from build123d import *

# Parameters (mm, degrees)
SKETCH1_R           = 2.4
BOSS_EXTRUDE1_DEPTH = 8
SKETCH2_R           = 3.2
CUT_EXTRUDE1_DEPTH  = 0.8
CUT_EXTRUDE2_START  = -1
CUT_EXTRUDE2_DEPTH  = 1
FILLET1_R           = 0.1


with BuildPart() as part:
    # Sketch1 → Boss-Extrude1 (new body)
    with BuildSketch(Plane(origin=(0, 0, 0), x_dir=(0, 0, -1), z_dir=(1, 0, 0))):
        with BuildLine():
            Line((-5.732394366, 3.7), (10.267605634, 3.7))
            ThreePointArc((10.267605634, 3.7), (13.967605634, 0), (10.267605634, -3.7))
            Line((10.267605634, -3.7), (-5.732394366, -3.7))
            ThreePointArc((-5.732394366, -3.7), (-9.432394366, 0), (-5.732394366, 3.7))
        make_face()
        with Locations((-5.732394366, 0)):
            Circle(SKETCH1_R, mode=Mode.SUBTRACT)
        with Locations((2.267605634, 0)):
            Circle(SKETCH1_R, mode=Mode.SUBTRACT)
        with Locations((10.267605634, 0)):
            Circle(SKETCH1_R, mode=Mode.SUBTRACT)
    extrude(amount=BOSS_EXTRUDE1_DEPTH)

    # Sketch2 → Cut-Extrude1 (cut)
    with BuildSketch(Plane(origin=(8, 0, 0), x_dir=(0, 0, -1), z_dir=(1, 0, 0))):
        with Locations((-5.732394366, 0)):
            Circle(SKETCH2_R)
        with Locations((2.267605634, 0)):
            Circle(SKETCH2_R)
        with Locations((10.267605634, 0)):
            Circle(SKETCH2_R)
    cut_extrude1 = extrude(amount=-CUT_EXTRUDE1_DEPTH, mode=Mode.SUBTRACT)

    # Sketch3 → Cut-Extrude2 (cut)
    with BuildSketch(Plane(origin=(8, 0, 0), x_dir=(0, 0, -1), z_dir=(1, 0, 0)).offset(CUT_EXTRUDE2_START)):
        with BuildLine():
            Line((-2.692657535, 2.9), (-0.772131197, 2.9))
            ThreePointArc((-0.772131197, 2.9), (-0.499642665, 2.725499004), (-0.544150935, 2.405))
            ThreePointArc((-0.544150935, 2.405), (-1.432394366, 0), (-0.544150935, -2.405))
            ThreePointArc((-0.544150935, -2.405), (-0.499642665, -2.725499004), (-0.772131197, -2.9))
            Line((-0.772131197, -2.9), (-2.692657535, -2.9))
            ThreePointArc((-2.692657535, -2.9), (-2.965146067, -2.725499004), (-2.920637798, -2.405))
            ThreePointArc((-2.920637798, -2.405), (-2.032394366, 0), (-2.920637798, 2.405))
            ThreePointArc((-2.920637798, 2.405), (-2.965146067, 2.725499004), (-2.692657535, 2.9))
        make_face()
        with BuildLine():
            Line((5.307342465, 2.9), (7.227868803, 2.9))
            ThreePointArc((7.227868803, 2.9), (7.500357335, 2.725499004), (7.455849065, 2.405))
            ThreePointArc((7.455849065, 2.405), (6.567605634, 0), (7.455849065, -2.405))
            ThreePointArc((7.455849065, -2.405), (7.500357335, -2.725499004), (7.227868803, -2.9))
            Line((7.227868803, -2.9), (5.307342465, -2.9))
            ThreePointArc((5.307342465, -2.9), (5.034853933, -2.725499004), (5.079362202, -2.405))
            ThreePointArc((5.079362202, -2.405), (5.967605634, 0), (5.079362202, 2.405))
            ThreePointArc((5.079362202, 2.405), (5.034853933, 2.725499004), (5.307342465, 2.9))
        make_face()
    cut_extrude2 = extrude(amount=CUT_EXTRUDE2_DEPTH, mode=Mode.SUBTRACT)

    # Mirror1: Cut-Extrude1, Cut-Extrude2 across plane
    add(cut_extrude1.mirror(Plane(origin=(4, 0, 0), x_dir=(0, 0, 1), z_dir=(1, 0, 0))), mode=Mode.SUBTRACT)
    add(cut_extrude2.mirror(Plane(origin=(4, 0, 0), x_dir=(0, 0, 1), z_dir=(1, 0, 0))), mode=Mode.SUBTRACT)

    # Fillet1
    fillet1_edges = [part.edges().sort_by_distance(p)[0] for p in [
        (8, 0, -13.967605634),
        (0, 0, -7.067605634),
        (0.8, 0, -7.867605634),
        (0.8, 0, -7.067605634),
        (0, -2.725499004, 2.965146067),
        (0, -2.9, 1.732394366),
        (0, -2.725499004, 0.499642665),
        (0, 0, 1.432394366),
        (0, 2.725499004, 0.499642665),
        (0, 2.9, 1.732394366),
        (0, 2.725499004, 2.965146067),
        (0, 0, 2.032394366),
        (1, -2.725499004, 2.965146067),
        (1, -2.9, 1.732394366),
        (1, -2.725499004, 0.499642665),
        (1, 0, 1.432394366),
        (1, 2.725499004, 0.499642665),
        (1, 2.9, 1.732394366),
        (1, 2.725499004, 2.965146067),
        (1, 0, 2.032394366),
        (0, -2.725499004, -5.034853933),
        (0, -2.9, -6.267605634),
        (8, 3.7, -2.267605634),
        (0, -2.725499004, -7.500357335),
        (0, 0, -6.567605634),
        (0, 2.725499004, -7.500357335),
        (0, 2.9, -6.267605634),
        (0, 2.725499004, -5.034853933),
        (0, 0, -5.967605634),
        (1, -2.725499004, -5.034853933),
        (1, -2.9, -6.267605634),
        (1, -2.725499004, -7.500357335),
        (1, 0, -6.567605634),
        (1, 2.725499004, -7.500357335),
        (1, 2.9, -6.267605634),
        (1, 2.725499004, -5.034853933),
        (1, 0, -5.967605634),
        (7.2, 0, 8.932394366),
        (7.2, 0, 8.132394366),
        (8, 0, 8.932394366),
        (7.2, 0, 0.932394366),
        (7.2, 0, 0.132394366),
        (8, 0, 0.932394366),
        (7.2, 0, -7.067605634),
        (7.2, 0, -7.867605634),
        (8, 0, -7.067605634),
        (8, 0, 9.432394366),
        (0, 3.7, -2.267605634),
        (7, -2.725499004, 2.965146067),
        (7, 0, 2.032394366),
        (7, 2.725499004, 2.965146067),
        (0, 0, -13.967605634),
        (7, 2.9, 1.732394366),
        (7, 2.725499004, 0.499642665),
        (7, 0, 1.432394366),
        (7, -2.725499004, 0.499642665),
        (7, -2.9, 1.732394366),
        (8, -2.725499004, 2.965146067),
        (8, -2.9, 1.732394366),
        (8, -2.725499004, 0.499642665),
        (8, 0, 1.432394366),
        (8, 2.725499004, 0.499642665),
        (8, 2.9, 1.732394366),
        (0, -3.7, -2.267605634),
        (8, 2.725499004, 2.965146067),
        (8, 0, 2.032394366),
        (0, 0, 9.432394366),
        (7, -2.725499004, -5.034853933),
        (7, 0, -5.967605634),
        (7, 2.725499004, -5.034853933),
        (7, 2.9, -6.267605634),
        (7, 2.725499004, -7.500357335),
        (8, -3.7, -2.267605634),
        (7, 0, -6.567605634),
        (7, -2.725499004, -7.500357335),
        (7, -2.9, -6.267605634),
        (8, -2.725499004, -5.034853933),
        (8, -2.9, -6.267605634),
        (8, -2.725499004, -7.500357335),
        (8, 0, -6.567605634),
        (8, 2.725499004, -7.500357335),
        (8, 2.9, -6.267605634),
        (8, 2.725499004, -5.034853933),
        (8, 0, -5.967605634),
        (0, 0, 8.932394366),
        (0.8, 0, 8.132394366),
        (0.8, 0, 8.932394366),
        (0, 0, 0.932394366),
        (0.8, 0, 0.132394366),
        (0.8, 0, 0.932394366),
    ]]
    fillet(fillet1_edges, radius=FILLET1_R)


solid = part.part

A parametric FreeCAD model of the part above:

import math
import FreeCAD as App
import Part
import Sketcher

V = App.Vector


def edges_at(feature, points):
    """Names of the edges that pass closest to the given points."""
    edges = feature.Shape.Edges
    near = lambda p: min(range(len(edges)), key=lambda i: edges[i].distToShape(Part.Vertex(*p))[0])
    return sorted({f"Edge{near(p) + 1}" for p in points})

doc = App.newDocument("Part")
body = doc.addObject("PartDesign::Body", "Body")

# Sketch on YZ plane
sketch1 = body.newObject("Sketcher::SketchObject", "Sketch")
sketch1.AttachmentSupport = (doc.getObject("YZ_Plane"), [""])
sketch1.MapMode = "FlatFace"
sketch1.addGeometry([
    Part.LineSegment(V(3.7, -10.3, 0), V(3.7, 5.7, 0)),  # 0
    Part.ArcOfCircle(Part.Circle(V(0, 5.7, 0), V(0, 0, 1), 3.7), math.radians(0), math.radians(180)),  # 1
    Part.LineSegment(V(-3.7, 5.7, 0), V(-3.7, -10.3, 0)),  # 2
    Part.ArcOfCircle(Part.Circle(V(0, -10.3, 0), V(0, 0, 1), 3.7), math.radians(180), math.radians(360)),  # 3
    Part.Circle(V(0, -10.3, 0), V(0, 0, 1), 2.4),  # 4
    Part.Circle(V(0, -2.3, 0), V(0, 0, 1), 2.4),  # 5
    Part.Circle(V(0, 5.7, 0), V(0, 0, 1), 2.4),  # 6
], False)
sketch1.addConstraint([
    Sketcher.Constraint("Tangent", 0, 2, 1, 1),
    Sketcher.Constraint("Tangent", 1, 2, 2, 1),
    Sketcher.Constraint("Tangent", 2, 2, 3, 1),
    Sketcher.Constraint("Tangent", 3, 2, 0, 1),
    Sketcher.Constraint("Vertical", 0),
    Sketcher.Constraint("Vertical", 2),
    Sketcher.Constraint("Coincident", 4, 3, 3, 3),
    Sketcher.Constraint("Coincident", 6, 3, 1, 3),
    Sketcher.Constraint("Equal", 4, 5),
    Sketcher.Constraint("Equal", 5, 6),
    Sketcher.Constraint("PointOnObject", 1, 3, -2),
    Sketcher.Constraint("PointOnObject", 5, 3, -2),
    Sketcher.Constraint("Diameter", 4, 4.8),
    Sketcher.Constraint("Radius", 1, 3.7),
    Sketcher.Constraint("DistanceY", 0, 1, 0, 2, 16.0),
    Sketcher.Constraint("DistanceY", 5, 3, 1, 3, 8.0),
    Sketcher.Constraint("DistanceY", -1, 1, 1, 3, 5.732394),
])
pad1 = body.newObject("PartDesign::Pad", "Pad")
pad1.Profile = sketch1
pad1.Length = 8

# Sketch on YZ plane
sketch2 = body.newObject("Sketcher::SketchObject", "Sketch001")
sketch2.AttachmentSupport = (doc.getObject("YZ_Plane"), [""])
sketch2.MapMode = "FlatFace"
sketch2.AttachmentOffset = App.Placement(V(0, 0, 8), App.Rotation())
sketch2.addGeometry([
    Part.Circle(V(0, 5.7, 0), V(0, 0, 1), 3.2),
    Part.Circle(V(0, -2.3, 0), V(0, 0, 1), 3.2),
    Part.Circle(V(0, -10.3, 0), V(0, 0, 1), 3.2),
], False)
sketch2.addConstraint([
    Sketcher.Constraint("Equal", 0, 1),
    Sketcher.Constraint("Equal", 1, 2),
    Sketcher.Constraint("PointOnObject", 0, 3, -2),
    Sketcher.Constraint("PointOnObject", 1, 3, -2),
    Sketcher.Constraint("PointOnObject", 2, 3, -2),
    Sketcher.Constraint("Diameter", 0, 6.4),
    Sketcher.Constraint("DistanceY", 1, 3, 0, 3, 8.0),
    Sketcher.Constraint("DistanceY", 2, 3, 1, 3, 8.0),
    Sketcher.Constraint("DistanceY", -1, 1, 0, 3, 5.732394),
])
pocket1 = body.newObject("PartDesign::Pocket", "Pocket")
pocket1.Profile = sketch2
pocket1.Length = 0.8

# Sketch on YZ plane
sketch3 = body.newObject("Sketcher::SketchObject", "Sketch002")
sketch3.AttachmentSupport = (doc.getObject("YZ_Plane"), [""])
sketch3.MapMode = "FlatFace"
sketch3.AttachmentOffset = App.Placement(V(0, 0, 7), App.Rotation())
sketch3.addGeometry([
    Part.LineSegment(V(2.9, 0.77, 0), V(2.9, 2.69, 0)),  # 0
    Part.ArcOfCircle(Part.Circle(V(2.6, 2.69, 0), V(0, 0, 1), 0.3), math.radians(0), math.radians(131)),  # 1
    Part.ArcOfCircle(Part.Circle(V(0, 5.73, 0), V(0, 0, 1), 3.7), math.radians(-131), math.radians(-49)),  # 2
    Part.ArcOfCircle(Part.Circle(V(-2.6, 2.69, 0), V(0, 0, 1), 0.3), math.radians(49), math.radians(180)),  # 3
    Part.LineSegment(V(-2.9, 2.69, 0), V(-2.9, 0.77, 0)),  # 4
    Part.ArcOfCircle(Part.Circle(V(-2.6, 0.77, 0), V(0, 0, 1), 0.3), math.radians(180), math.radians(311)),  # 5
    Part.ArcOfCircle(Part.Circle(V(0, -2.27, 0), V(0, 0, 1), 3.7), math.radians(49), math.radians(131)),  # 6
    Part.ArcOfCircle(Part.Circle(V(2.6, 0.77, 0), V(0, 0, 1), 0.3), math.radians(-131), math.radians(0)),  # 7
    Part.LineSegment(V(2.9, -7.23, 0), V(2.9, -5.31, 0)),  # 8
    Part.ArcOfCircle(Part.Circle(V(2.6, -5.31, 0), V(0, 0, 1), 0.3), math.radians(0), math.radians(131)),  # 9
    Part.ArcOfCircle(Part.Circle(V(0, -2.27, 0), V(0, 0, 1), 3.7), math.radians(-131), math.radians(-49)),  # 10
    Part.ArcOfCircle(Part.Circle(V(-2.6, -5.31, 0), V(0, 0, 1), 0.3), math.radians(49), math.radians(180)),  # 11
    Part.LineSegment(V(-2.9, -5.31, 0), V(-2.9, -7.23, 0)),  # 12
    Part.ArcOfCircle(Part.Circle(V(-2.6, -7.23, 0), V(0, 0, 1), 0.3), math.radians(180), math.radians(311)),  # 13
    Part.ArcOfCircle(Part.Circle(V(0, -10.27, 0), V(0, 0, 1), 3.7), math.radians(49), math.radians(131)),  # 14
    Part.ArcOfCircle(Part.Circle(V(2.6, -7.23, 0), V(0, 0, 1), 0.3), math.radians(-131), math.radians(0)),  # 15
], False)
sketch3.addConstraint([
    Sketcher.Constraint("Tangent", 0, 2, 1, 1),
    Sketcher.Constraint("Tangent", 1, 2, 2, 2),
    Sketcher.Constraint("Tangent", 2, 1, 3, 1),
    Sketcher.Constraint("Tangent", 3, 2, 4, 1),
    Sketcher.Constraint("Tangent", 4, 2, 5, 1),
    Sketcher.Constraint("Tangent", 5, 2, 6, 2),
    Sketcher.Constraint("Tangent", 6, 1, 7, 1),
    Sketcher.Constraint("Tangent", 7, 2, 0, 1),
    Sketcher.Constraint("Tangent", 8, 2, 9, 1),
    Sketcher.Constraint("Tangent", 9, 2, 10, 2),
    Sketcher.Constraint("Tangent", 10, 1, 11, 1),
    Sketcher.Constraint("Tangent", 11, 2, 12, 1),
    Sketcher.Constraint("Tangent", 12, 2, 13, 1),
    Sketcher.Constraint("Tangent", 13, 2, 14, 2),
    Sketcher.Constraint("Tangent", 14, 1, 15, 1),
    Sketcher.Constraint("Tangent", 15, 2, 8, 1),
    Sketcher.Constraint("Vertical", 0),
    Sketcher.Constraint("Vertical", 4),
    Sketcher.Constraint("Vertical", 8),
    Sketcher.Constraint("Vertical", 12),
    Sketcher.Constraint("Coincident", 10, 3, 6, 3),
    Sketcher.Constraint("Equal", 1, 3),
    Sketcher.Constraint("Equal", 3, 5),
    Sketcher.Constraint("Equal", 2, 6),
    Sketcher.Constraint("Equal", 5, 7),
    Sketcher.Constraint("Equal", 7, 9),
    Sketcher.Constraint("Equal", 6, 10),
    Sketcher.Constraint("Equal", 9, 11),
    Sketcher.Constraint("Equal", 11, 13),
    Sketcher.Constraint("Equal", 10, 14),
    Sketcher.Constraint("Equal", 13, 15),
    Sketcher.Constraint("Symmetric", 1, 3, 3, 3, -2),
    Sketcher.Constraint("Symmetric", 9, 3, 11, 3, -2),
    Sketcher.Constraint("PointOnObject", 14, 3, -2),
    Sketcher.Constraint("Vertical", 7, 3, 9, 3),
    Sketcher.Constraint("Equal", 4, 8),
    Sketcher.Constraint("Radius", 1, 0.3),
    Sketcher.Constraint("Radius", 2, 3.7),
    Sketcher.Constraint("DistanceY", 6, 3, 2, 3, 8.0),
    Sketcher.Constraint("DistanceX", -1, 1, 1, 3, 2.6),
    Sketcher.Constraint("DistanceY", -1, 1, 5, 3, 0.772131),
])
pocket2 = body.newObject("PartDesign::Pocket", "Pocket001")
pocket2.Profile = sketch3
pocket2.Length = 1
pocket2.Reversed = True
doc.recompute()

datumplane = body.newObject("PartDesign::Plane", "DatumPlane")
datumplane.AttachmentSupport = (doc.getObject("YZ_Plane"), [""])
datumplane.MapMode = "FlatFace"
datumplane.AttachmentOffset = App.Placement(V(0, 0, 4), App.Rotation())
mirrored = body.newObject("PartDesign::Mirrored", "Mirrored")
mirrored.Originals = [pocket1, pocket2]
mirrored.MirrorPlane = (datumplane, [""])
body.Tip = mirrored
doc.recompute()

fillet = body.newObject("PartDesign::Fillet", "Fillet")
fillet.Base = (mirrored, edges_at(mirrored, [
    (8, 0, -13.968),
    (0, 0, -7.068),
    (0.8, 0, -7.868),
    (0.8, 0, -7.068),
    (0, -2.725, 2.965),
    (0, -2.9, 1.732),
    (0, -2.725, 0.5),
    (0, 0, 1.432),
    (0, 2.725, 0.5),
    (0, 2.9, 1.732),
    (0, 2.725, 2.965),
    (0, 0, 2.032),
    (1, -2.725, 2.965),
    (1, -2.9, 1.732),
    (1, -2.725, 0.5),
    (1, 0, 1.432),
    (1, 2.725, 0.5),
    (1, 2.9, 1.732),
    (1, 2.725, 2.965),
    (1, 0, 2.032),
    (0, -2.725, -5.035),
    (0, -2.9, -6.268),
    (8, 3.7, -2.268),
    (0, -2.725, -7.5),
    (0, 0, -6.568),
    (0, 2.725, -7.5),
    (0, 2.9, -6.268),
    (0, 2.725, -5.035),
    (0, 0, -5.968),
    (1, -2.725, -5.035),
    (1, -2.9, -6.268),
    (1, -2.725, -7.5),
    (1, 0, -6.568),
    (1, 2.725, -7.5),
    (1, 2.9, -6.268),
    (1, 2.725, -5.035),
    (1, 0, -5.968),
    (7.2, 0, 8.932),
    (7.2, 0, 8.132),
    (8, 0, 8.932),
    (7.2, 0, 0.932),
    (7.2, 0, 0.132),
    (8, 0, 0.932),
    (7.2, 0, -7.068),
    (7.2, 0, -7.868),
    (8, 0, -7.068),
    (8, 0, 9.432),
    (0, 3.7, -2.268),
    (7, -2.725, 2.965),
    (7, 0, 2.032),
    (7, 2.725, 2.965),
    (0, 0, -13.968),
    (7, 2.9, 1.732),
    (7, 2.725, 0.5),
    (7, 0, 1.432),
    (7, -2.725, 0.5),
    (7, -2.9, 1.732),
    (8, -2.725, 2.965),
    (8, -2.9, 1.732),
    (8, -2.725, 0.5),
    (8, 0, 1.432),
    (8, 2.725, 0.5),
    (8, 2.9, 1.732),
    (0, -3.7, -2.268),
    (8, 2.725, 2.965),
    (8, 0, 2.032),
    (0, 0, 9.432),
    (7, -2.725, -5.035),
    (7, 0, -5.968),
    (7, 2.725, -5.035),
    (7, 2.9, -6.268),
    (7, 2.725, -7.5),
    (8, -3.7, -2.268),
    (7, 0, -6.568),
    (7, -2.725, -7.5),
    (7, -2.9, -6.268),
    (8, -2.725, -5.035),
    (8, -2.9, -6.268),
    (8, -2.725, -7.5),
    (8, 0, -6.568),
    (8, 2.725, -7.5),
    (8, 2.9, -6.268),
    (8, 2.725, -5.035),
    (8, 0, -5.968),
    (0, 0, 8.932),
    (0.8, 0, 8.132),
    (0.8, 0, 8.932),
    (0, 0, 0.932),
    (0.8, 0, 0.132),
    (0.8, 0, 0.932),
]))
fillet.Radius = 0.1

doc.recompute()
